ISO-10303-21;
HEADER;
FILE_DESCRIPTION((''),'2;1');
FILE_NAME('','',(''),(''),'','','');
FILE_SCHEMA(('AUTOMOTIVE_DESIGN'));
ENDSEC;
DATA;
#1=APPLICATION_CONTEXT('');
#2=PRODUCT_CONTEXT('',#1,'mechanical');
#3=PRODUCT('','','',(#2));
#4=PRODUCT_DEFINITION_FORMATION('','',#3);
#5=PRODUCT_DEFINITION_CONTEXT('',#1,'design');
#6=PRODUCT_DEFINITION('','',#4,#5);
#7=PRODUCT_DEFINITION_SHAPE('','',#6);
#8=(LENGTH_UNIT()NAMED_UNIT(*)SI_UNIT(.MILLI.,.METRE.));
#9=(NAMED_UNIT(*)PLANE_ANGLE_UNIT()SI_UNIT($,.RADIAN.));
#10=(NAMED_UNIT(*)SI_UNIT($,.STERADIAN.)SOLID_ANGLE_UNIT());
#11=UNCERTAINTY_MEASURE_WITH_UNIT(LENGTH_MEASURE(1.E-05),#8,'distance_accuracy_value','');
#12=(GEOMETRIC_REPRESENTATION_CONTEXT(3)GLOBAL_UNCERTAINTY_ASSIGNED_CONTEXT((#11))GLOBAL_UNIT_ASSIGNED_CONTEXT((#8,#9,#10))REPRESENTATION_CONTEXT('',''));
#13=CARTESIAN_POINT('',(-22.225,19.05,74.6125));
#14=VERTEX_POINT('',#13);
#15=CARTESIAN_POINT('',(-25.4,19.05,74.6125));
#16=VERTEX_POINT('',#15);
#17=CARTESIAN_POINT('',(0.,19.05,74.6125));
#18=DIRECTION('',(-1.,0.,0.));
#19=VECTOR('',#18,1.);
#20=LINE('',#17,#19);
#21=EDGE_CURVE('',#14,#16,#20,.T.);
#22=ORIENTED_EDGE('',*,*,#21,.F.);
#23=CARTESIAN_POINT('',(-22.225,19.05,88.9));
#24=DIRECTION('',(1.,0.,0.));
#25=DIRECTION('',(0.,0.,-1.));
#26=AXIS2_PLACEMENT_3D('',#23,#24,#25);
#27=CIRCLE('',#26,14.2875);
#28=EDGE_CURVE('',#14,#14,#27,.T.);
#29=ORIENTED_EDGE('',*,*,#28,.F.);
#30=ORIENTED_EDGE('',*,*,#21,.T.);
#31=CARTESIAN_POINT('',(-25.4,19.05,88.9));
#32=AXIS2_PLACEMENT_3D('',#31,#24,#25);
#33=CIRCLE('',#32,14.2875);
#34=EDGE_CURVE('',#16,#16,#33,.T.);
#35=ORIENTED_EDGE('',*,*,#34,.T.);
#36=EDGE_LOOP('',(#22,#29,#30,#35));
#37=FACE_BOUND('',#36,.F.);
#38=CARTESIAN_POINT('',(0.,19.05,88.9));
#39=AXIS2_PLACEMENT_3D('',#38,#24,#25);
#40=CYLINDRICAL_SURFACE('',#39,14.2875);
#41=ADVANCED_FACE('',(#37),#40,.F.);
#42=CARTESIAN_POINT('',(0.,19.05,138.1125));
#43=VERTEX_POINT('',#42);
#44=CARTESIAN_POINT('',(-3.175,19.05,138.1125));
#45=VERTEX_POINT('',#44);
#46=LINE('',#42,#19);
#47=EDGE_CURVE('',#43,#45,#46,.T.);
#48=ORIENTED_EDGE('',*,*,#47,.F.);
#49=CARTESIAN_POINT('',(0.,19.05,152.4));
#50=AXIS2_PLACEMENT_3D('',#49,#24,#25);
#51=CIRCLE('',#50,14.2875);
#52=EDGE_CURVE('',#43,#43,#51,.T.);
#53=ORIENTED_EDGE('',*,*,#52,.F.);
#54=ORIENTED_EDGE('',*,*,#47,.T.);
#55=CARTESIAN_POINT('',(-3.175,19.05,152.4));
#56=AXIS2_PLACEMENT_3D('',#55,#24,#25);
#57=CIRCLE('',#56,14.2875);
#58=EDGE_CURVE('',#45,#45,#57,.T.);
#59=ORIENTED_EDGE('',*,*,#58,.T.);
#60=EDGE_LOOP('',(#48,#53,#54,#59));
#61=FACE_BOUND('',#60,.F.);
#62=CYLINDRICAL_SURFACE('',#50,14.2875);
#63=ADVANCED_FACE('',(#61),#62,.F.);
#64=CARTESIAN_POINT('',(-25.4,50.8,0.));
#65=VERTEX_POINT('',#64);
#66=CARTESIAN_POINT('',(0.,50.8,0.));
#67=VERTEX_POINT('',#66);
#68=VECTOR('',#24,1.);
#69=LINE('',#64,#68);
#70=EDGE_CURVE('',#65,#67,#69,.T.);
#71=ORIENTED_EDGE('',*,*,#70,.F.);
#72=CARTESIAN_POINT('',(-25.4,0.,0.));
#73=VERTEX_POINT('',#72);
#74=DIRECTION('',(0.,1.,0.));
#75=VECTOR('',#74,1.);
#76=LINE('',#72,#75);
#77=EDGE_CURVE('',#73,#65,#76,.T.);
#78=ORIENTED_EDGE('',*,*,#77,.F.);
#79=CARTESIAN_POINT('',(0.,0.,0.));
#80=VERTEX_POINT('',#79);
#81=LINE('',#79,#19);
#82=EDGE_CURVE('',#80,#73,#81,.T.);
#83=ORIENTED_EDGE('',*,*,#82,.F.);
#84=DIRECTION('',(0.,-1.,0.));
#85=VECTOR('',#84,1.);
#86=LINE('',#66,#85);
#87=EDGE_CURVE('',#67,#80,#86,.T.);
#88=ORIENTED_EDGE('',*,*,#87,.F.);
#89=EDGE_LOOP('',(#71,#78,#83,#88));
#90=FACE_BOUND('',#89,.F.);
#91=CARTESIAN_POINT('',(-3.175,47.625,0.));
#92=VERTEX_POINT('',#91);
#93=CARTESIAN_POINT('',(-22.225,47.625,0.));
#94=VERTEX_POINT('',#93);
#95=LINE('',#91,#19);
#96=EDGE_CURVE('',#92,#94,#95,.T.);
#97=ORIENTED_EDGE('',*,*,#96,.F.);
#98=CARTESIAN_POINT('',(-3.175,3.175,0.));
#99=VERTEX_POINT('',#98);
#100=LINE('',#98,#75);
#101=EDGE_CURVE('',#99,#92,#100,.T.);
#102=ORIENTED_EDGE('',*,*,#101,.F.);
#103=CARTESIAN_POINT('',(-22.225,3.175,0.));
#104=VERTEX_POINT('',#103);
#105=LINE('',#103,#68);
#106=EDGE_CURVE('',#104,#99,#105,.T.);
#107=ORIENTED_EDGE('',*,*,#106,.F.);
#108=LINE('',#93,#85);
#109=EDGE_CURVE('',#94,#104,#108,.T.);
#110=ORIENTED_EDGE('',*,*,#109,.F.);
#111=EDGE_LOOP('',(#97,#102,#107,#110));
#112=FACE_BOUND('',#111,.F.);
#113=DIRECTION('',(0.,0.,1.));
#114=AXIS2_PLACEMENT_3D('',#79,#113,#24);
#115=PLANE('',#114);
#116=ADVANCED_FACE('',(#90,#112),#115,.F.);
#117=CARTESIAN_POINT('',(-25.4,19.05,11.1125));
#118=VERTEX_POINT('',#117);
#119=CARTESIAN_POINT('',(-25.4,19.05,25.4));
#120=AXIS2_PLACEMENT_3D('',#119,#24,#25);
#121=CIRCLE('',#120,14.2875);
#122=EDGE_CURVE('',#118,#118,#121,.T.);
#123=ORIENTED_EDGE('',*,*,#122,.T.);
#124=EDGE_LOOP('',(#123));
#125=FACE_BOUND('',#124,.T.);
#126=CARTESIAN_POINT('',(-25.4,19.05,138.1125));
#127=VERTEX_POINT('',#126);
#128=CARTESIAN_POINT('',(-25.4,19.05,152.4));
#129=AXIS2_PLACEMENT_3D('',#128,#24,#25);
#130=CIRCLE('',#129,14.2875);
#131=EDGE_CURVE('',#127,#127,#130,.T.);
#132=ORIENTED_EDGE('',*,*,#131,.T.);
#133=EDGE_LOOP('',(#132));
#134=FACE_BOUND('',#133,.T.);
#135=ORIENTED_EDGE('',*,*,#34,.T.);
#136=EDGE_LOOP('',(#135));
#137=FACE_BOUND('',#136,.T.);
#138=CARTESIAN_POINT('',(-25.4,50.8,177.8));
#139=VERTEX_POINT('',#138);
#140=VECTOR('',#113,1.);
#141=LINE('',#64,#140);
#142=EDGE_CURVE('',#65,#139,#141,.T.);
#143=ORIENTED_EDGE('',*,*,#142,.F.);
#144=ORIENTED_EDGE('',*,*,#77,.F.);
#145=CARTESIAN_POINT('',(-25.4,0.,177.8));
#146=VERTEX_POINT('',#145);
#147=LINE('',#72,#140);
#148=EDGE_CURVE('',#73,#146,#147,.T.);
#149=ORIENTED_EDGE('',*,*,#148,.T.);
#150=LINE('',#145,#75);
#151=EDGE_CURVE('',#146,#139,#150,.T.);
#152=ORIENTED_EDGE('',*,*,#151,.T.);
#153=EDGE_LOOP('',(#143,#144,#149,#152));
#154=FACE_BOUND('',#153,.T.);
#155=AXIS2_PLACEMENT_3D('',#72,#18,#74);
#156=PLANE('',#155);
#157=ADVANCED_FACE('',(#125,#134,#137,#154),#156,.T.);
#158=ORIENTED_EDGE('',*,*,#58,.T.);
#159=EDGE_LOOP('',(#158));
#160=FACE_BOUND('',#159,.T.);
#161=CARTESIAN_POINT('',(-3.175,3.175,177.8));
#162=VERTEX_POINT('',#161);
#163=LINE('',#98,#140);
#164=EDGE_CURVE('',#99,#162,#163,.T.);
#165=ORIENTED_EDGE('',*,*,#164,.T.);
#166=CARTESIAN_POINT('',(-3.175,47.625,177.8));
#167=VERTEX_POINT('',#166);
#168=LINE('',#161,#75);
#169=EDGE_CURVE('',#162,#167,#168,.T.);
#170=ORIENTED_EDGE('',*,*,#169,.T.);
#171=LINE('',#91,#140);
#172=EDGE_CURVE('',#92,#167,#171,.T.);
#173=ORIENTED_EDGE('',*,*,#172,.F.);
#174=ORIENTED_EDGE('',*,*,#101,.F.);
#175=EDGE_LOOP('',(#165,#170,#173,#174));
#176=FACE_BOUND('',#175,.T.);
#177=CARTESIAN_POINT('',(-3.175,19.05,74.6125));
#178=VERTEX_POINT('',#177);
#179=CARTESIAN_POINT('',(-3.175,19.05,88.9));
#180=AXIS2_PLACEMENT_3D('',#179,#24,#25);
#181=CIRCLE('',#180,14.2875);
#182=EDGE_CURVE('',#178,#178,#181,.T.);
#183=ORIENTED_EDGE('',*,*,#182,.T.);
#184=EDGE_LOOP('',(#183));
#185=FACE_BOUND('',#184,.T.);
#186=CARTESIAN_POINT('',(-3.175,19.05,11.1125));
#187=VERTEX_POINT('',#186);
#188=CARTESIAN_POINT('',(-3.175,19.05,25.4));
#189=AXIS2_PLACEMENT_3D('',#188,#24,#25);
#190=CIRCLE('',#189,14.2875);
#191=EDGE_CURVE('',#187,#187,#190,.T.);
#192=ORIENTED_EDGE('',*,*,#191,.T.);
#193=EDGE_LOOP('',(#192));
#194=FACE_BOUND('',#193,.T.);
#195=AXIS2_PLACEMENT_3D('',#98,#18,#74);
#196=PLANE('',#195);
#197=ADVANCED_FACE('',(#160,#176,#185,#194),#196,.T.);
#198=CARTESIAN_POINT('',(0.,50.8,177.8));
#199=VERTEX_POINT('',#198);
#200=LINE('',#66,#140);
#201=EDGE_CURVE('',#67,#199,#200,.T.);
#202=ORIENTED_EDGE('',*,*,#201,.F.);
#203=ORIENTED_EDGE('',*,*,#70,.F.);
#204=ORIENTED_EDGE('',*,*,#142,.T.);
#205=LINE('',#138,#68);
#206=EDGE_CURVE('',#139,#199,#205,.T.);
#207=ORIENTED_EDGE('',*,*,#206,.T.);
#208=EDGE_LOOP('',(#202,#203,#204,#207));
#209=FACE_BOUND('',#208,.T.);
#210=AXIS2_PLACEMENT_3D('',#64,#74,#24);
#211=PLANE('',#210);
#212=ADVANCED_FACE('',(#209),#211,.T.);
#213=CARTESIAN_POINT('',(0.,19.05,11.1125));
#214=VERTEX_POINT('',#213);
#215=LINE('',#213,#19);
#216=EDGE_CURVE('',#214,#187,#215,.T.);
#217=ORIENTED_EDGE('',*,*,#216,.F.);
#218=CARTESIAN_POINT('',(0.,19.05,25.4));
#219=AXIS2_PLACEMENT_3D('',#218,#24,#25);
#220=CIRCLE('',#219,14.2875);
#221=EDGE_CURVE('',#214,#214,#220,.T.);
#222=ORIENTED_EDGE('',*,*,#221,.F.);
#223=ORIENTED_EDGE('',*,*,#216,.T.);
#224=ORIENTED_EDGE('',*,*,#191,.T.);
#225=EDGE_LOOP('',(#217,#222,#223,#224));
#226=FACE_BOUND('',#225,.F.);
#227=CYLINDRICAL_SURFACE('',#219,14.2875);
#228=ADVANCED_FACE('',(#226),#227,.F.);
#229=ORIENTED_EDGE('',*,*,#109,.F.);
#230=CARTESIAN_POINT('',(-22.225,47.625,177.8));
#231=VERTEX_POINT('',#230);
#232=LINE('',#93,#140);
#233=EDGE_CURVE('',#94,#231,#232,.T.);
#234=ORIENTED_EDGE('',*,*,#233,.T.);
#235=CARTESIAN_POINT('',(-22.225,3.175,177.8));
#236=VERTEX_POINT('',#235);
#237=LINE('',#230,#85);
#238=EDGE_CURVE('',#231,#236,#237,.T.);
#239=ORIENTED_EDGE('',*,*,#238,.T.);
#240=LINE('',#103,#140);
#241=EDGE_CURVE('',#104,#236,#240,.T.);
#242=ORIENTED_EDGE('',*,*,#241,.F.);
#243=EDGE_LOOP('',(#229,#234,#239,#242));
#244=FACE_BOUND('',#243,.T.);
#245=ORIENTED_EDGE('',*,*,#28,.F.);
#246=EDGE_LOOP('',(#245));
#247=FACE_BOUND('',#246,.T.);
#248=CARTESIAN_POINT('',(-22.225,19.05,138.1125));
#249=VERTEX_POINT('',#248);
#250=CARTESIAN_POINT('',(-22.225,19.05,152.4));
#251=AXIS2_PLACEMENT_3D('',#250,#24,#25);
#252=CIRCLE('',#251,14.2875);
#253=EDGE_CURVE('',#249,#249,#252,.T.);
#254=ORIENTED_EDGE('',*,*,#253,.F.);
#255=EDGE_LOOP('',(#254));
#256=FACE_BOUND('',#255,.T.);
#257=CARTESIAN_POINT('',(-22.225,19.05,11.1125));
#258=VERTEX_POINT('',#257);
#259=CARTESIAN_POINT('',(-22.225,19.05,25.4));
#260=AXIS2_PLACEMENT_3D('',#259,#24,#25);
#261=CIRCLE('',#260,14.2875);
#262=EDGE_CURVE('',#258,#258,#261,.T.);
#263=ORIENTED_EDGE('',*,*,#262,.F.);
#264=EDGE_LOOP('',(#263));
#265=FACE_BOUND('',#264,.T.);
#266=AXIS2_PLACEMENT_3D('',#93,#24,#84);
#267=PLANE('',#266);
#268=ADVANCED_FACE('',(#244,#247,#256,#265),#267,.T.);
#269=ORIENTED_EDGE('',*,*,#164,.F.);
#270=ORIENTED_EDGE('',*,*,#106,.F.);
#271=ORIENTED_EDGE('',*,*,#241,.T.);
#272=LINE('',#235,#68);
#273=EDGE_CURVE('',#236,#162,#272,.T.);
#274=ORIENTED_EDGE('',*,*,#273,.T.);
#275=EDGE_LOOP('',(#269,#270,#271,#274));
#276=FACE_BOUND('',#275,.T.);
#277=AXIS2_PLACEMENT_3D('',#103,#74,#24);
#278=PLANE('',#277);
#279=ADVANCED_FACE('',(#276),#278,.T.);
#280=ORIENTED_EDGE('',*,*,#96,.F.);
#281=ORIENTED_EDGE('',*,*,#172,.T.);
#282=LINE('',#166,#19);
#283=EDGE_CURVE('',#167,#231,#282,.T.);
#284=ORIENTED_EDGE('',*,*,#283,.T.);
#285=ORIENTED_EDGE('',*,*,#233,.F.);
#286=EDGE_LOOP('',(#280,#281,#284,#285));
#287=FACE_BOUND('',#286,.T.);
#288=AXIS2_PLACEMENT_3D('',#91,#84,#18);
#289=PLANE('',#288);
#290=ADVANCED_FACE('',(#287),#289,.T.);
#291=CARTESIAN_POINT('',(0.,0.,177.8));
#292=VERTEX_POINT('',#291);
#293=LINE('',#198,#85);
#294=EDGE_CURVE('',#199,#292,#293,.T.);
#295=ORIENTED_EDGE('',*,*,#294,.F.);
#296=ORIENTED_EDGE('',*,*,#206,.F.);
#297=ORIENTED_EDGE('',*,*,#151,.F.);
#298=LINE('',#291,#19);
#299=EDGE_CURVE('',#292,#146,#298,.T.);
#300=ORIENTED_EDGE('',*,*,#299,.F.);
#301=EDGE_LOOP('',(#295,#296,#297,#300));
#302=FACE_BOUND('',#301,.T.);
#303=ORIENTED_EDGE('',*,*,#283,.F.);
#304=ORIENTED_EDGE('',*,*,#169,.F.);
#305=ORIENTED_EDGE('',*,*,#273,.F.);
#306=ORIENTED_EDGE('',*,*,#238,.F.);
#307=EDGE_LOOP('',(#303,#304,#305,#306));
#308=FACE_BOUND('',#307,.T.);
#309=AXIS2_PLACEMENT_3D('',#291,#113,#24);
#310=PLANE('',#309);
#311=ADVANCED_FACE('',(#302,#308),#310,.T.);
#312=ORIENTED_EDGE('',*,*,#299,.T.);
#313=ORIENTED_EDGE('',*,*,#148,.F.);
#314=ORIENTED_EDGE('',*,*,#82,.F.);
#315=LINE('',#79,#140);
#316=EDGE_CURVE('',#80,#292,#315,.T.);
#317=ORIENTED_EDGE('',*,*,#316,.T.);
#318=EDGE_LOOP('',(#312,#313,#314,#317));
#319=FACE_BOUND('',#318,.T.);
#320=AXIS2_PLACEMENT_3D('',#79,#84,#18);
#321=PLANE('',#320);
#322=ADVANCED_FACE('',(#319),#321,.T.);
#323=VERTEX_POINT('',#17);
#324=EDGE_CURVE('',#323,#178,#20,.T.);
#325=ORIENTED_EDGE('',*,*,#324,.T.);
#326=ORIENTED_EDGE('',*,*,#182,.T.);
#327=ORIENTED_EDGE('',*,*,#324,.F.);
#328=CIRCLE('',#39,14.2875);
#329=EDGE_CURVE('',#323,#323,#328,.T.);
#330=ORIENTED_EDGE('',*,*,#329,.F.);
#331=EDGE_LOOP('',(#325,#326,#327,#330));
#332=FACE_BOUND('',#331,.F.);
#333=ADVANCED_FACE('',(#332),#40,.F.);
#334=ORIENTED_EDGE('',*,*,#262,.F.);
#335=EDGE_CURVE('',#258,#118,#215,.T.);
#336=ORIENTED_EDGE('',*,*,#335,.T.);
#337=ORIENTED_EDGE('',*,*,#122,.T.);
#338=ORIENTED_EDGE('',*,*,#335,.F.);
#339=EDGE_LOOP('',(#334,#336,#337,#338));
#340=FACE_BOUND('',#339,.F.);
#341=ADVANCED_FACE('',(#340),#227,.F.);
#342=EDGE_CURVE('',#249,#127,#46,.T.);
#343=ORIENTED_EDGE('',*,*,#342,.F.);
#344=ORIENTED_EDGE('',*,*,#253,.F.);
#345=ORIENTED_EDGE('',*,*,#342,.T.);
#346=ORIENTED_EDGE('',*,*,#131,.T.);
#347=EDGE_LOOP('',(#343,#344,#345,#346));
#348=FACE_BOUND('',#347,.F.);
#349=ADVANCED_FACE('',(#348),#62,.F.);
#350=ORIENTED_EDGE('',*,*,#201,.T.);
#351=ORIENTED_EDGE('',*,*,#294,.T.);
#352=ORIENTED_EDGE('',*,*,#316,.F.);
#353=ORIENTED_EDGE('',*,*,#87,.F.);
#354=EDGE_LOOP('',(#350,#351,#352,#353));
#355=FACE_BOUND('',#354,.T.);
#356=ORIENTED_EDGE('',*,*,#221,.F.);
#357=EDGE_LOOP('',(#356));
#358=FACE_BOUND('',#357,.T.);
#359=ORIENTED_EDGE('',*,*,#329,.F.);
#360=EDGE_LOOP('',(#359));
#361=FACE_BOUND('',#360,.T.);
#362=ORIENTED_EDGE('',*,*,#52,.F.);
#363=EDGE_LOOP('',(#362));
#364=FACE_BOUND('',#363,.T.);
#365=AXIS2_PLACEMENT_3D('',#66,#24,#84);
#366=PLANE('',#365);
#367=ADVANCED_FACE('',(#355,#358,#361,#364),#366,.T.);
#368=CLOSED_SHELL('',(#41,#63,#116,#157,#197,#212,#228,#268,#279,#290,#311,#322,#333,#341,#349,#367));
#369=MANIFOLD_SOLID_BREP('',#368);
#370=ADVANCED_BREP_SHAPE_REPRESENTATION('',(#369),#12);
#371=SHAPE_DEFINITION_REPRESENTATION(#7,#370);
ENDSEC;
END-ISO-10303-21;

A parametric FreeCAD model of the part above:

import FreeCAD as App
import Part
import Sketcher

V = App.Vector
Q = App.Units.Quantity


def add_polygon(sketch, points):
    """Adds a closed chain of lines whose ends are joined by coincident constraints."""
    first, n = sketch.GeometryCount, len(points)
    for a, b in zip(points, points[1:] + points[:1]):
        sketch.addGeometry(Part.LineSegment(App.Vector(*a, 0), App.Vector(*b, 0)), False)
    for i in range(n):
        sketch.addConstraint(Sketcher.Constraint("Coincident", first + i, 2, first + (i + 1) % n, 1))

doc = App.newDocument("Part")
body = doc.addObject("PartDesign::Body", "Body")

# Sketch on XY plane
sketch1 = doc.addObject("Sketcher::SketchObject", "Sketch")
body.addObject(sketch1)
sketch1.AttachmentSupport = (doc.XY_Plane, [""])
sketch1.MapMode = "FlatFace"
add_polygon(sketch1, [(-25, 0), (0, 0), (0, 51), (-25, 51)])  # lines 0-3
add_polygon(sketch1, [(-3, 3), (-22, 3), (-22, 48), (-3, 48)])  # lines 4-7
sketch1.addConstraint(Sketcher.Constraint("Horizontal", 0))
sketch1.addConstraint(Sketcher.Constraint("Vertical", 1))
sketch1.addConstraint(Sketcher.Constraint("Horizontal", 2))
sketch1.addConstraint(Sketcher.Constraint("Vertical", 3))
sketch1.addConstraint(Sketcher.Constraint("Horizontal", 4))
sketch1.addConstraint(Sketcher.Constraint("Vertical", 5))
sketch1.addConstraint(Sketcher.Constraint("Horizontal", 6))
sketch1.addConstraint(Sketcher.Constraint("Vertical", 7))
sketch1.addConstraint(Sketcher.Constraint("Coincident", 0, 2, -1, 1))
sketch1.addConstraint(Sketcher.Constraint("DistanceX", 0, 1, 0, 2, Q("1 in")))
sketch1.addConstraint(Sketcher.Constraint("DistanceY", 1, 1, 1, 2, Q("2 in")))
sketch1.addConstraint(Sketcher.Constraint("DistanceY", -1, 1, 4, 2, Q("0.125 in")))
sketch1.addConstraint(Sketcher.Constraint("DistanceX", 6, 2, -1, 1, Q("0.125 in")))
sketch1.addConstraint(Sketcher.Constraint("DistanceX", 3, 2, 4, 2, Q("0.125 in")))
sketch1.addConstraint(Sketcher.Constraint("DistanceY", 5, 2, 2, 2, Q("0.125 in")))
pad1 = doc.addObject("PartDesign::Pad", "Pad")
body.addObject(pad1)
pad1.Profile = sketch1
pad1.Length = Q("7 in")

# Sketch on YZ plane
sketch2 = doc.addObject("Sketcher::SketchObject", "Sketch001")
body.addObject(sketch2)
sketch2.AttachmentSupport = (doc.YZ_Plane, [""])
sketch2.MapMode = "FlatFace"
sketch2.addGeometry(Part.Circle(V(19, 152, 0), V(0, 0, 1), 14), False)
sketch2.addGeometry(Part.Circle(V(19, 25, 0), V(0, 0, 1), 14), False)
sketch2.addGeometry(Part.Circle(V(19, 89, 0), V(0, 0, 1), 14), False)
sketch2.addConstraint(Sketcher.Constraint("Equal", 0, 1))
sketch2.addConstraint(Sketcher.Constraint("Equal", 1, 2))
sketch2.addConstraint(Sketcher.Constraint("Vertical", 0, 3, 1, 3))
sketch2.addConstraint(Sketcher.Constraint("Vertical", 1, 3, 2, 3))
sketch2.addConstraint(Sketcher.Constraint("Diameter", 0, Q("1.125 in")))
sketch2.addConstraint(Sketcher.Constraint("DistanceY", -1, 1, 1, 3, Q("1 in")))
sketch2.addConstraint(Sketcher.Constraint("DistanceY", 2, 3, 0, 3, Q("2.5 in")))
sketch2.addConstraint(Sketcher.Constraint("DistanceY", 1, 3, 2, 3, Q("2.5 in")))
sketch2.addConstraint(Sketcher.Constraint("DistanceX", -1, 1, 0, 3, Q("0.75 in")))
pocket1 = doc.addObject("PartDesign::Pocket", "Pocket")
body.addObject(pocket1)
pocket1.Profile = sketch2
pocket1.Length = Q("8.243 in")

doc.recompute()
